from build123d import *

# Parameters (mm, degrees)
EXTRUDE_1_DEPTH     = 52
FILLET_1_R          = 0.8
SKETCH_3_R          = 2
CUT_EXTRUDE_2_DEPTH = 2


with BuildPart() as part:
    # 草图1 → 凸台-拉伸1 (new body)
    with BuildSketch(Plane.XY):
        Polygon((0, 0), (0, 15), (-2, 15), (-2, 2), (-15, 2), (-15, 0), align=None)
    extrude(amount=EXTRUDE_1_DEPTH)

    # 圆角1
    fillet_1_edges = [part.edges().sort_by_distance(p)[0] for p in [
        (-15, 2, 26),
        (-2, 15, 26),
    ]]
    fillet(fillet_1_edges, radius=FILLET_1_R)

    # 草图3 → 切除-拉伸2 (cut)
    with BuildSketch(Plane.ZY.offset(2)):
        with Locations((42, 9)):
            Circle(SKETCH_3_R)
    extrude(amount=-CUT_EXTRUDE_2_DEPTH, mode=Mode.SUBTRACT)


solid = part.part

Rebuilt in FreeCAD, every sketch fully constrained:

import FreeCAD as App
import Part
import Sketcher

V = App.Vector


def edges_at(feature, points):
    """Names of the edges that pass closest to the given points."""
    edges = feature.Shape.Edges
    near = lambda p: min(range(len(edges)), key=lambda i: edges[i].distToShape(Part.Vertex(*p))[0])
    return sorted({f"Edge{near(p) + 1}" for p in points})

doc = App.newDocument("Part")
body = doc.addObject("PartDesign::Body", "Body")

sketch1 = body.newObject("Sketcher::SketchObject", "Sketch")
sketch1.AttachmentSupport = (doc.getObject("XY_Plane"), [""])
sketch1.MapMode = "FlatFace"
sketch1.addGeometry(Part.LineSegment(V(0, 0, 0), V(0, 15, 0)), False)
sketch1.addGeometry(Part.LineSegment(V(0, 15, 0), V(-2, 15, 0)), False)
sketch1.addGeometry(Part.LineSegment(V(-2, 15, 0), V(-2, 2, 0)), False)
sketch1.addGeometry(Part.LineSegment(V(-2, 2, 0), V(-15, 2, 0)), False)
sketch1.addGeometry(Part.LineSegment(V(-15, 2, 0), V(-15, 0, 0)), False)
sketch1.addGeometry(Part.LineSegment(V(-15, 0, 0), V(0, 0, 0)), False)
sketch1.addConstraint(Sketcher.Constraint("Coincident", 0, 2, 1, 1))
sketch1.addConstraint(Sketcher.Constraint("Coincident", 1, 2, 2, 1))
sketch1.addConstraint(Sketcher.Constraint("Coincident", 2, 2, 3, 1))
sketch1.addConstraint(Sketcher.Constraint("Coincident", 3, 2, 4, 1))
sketch1.addConstraint(Sketcher.Constraint("Coincident", 4, 2, 5, 1))
sketch1.addConstraint(Sketcher.Constraint("Coincident", 5, 2, 0, 1))
sketch1.addConstraint(Sketcher.Constraint("Vertical", 0))
sketch1.addConstraint(Sketcher.Constraint("Horizontal", 1))
sketch1.addConstraint(Sketcher.Constraint("Vertical", 2))
sketch1.addConstraint(Sketcher.Constraint("Horizontal", 3))
sketch1.addConstraint(Sketcher.Constraint("Vertical", 4))
sketch1.addConstraint(Sketcher.Constraint("Horizontal", 5))
sketch1.addConstraint(Sketcher.Constraint("Coincident", 5, 2, -1, 1))
sketch1.addConstraint(Sketcher.Constraint("Equal", 5, 0))
sketch1.addConstraint(Sketcher.Constraint("Equal", 3, 2))
sketch1.addConstraint(Sketcher.Constraint("DistanceX", 1, 2, 1, 1, 2.0))
sketch1.addConstraint(Sketcher.Constraint("DistanceX", 3, 2, 3, 1, 13.0))
pad1 = body.newObject("PartDesign::Pad", "Pad")
pad1.Profile = sketch1
pad1.Length = 52
doc.recompute()

fillet = body.newObject("PartDesign::Fillet", "Fillet")
fillet.Base = (pad1, edges_at(pad1, [(-15, 2, 26), (-2, 15, 26)]))
fillet.Radius = 0.8

sketch2 = body.newObject("Sketcher::SketchObject", "Sketch001")
sketch2.AttachmentSupport = (doc.getObject("YZ_Plane"), [""])
sketch2.MapMode = "FlatFace"
sketch2.AttachmentOffset = App.Placement(V(0, 0, -2), App.Rotation())
sketch2.addGeometry(Part.Circle(V(9, 42, 0), V(0, 0, 1), 2), False)
sketch2.addConstraint(Sketcher.Constraint("Diameter", 0, 4.0))
sketch2.addConstraint(Sketcher.Constraint("DistanceX", -1, 1, 0, 3, 9.0))
sketch2.addConstraint(Sketcher.Constraint("DistanceY", -1, 1, 0, 3, 42.0))
pocket1 = body.newObject("PartDesign::Pocket", "Pocket")
pocket1.Profile = sketch2
pocket1.Length = 2
pocket1.Reversed = True

doc.recompute()
